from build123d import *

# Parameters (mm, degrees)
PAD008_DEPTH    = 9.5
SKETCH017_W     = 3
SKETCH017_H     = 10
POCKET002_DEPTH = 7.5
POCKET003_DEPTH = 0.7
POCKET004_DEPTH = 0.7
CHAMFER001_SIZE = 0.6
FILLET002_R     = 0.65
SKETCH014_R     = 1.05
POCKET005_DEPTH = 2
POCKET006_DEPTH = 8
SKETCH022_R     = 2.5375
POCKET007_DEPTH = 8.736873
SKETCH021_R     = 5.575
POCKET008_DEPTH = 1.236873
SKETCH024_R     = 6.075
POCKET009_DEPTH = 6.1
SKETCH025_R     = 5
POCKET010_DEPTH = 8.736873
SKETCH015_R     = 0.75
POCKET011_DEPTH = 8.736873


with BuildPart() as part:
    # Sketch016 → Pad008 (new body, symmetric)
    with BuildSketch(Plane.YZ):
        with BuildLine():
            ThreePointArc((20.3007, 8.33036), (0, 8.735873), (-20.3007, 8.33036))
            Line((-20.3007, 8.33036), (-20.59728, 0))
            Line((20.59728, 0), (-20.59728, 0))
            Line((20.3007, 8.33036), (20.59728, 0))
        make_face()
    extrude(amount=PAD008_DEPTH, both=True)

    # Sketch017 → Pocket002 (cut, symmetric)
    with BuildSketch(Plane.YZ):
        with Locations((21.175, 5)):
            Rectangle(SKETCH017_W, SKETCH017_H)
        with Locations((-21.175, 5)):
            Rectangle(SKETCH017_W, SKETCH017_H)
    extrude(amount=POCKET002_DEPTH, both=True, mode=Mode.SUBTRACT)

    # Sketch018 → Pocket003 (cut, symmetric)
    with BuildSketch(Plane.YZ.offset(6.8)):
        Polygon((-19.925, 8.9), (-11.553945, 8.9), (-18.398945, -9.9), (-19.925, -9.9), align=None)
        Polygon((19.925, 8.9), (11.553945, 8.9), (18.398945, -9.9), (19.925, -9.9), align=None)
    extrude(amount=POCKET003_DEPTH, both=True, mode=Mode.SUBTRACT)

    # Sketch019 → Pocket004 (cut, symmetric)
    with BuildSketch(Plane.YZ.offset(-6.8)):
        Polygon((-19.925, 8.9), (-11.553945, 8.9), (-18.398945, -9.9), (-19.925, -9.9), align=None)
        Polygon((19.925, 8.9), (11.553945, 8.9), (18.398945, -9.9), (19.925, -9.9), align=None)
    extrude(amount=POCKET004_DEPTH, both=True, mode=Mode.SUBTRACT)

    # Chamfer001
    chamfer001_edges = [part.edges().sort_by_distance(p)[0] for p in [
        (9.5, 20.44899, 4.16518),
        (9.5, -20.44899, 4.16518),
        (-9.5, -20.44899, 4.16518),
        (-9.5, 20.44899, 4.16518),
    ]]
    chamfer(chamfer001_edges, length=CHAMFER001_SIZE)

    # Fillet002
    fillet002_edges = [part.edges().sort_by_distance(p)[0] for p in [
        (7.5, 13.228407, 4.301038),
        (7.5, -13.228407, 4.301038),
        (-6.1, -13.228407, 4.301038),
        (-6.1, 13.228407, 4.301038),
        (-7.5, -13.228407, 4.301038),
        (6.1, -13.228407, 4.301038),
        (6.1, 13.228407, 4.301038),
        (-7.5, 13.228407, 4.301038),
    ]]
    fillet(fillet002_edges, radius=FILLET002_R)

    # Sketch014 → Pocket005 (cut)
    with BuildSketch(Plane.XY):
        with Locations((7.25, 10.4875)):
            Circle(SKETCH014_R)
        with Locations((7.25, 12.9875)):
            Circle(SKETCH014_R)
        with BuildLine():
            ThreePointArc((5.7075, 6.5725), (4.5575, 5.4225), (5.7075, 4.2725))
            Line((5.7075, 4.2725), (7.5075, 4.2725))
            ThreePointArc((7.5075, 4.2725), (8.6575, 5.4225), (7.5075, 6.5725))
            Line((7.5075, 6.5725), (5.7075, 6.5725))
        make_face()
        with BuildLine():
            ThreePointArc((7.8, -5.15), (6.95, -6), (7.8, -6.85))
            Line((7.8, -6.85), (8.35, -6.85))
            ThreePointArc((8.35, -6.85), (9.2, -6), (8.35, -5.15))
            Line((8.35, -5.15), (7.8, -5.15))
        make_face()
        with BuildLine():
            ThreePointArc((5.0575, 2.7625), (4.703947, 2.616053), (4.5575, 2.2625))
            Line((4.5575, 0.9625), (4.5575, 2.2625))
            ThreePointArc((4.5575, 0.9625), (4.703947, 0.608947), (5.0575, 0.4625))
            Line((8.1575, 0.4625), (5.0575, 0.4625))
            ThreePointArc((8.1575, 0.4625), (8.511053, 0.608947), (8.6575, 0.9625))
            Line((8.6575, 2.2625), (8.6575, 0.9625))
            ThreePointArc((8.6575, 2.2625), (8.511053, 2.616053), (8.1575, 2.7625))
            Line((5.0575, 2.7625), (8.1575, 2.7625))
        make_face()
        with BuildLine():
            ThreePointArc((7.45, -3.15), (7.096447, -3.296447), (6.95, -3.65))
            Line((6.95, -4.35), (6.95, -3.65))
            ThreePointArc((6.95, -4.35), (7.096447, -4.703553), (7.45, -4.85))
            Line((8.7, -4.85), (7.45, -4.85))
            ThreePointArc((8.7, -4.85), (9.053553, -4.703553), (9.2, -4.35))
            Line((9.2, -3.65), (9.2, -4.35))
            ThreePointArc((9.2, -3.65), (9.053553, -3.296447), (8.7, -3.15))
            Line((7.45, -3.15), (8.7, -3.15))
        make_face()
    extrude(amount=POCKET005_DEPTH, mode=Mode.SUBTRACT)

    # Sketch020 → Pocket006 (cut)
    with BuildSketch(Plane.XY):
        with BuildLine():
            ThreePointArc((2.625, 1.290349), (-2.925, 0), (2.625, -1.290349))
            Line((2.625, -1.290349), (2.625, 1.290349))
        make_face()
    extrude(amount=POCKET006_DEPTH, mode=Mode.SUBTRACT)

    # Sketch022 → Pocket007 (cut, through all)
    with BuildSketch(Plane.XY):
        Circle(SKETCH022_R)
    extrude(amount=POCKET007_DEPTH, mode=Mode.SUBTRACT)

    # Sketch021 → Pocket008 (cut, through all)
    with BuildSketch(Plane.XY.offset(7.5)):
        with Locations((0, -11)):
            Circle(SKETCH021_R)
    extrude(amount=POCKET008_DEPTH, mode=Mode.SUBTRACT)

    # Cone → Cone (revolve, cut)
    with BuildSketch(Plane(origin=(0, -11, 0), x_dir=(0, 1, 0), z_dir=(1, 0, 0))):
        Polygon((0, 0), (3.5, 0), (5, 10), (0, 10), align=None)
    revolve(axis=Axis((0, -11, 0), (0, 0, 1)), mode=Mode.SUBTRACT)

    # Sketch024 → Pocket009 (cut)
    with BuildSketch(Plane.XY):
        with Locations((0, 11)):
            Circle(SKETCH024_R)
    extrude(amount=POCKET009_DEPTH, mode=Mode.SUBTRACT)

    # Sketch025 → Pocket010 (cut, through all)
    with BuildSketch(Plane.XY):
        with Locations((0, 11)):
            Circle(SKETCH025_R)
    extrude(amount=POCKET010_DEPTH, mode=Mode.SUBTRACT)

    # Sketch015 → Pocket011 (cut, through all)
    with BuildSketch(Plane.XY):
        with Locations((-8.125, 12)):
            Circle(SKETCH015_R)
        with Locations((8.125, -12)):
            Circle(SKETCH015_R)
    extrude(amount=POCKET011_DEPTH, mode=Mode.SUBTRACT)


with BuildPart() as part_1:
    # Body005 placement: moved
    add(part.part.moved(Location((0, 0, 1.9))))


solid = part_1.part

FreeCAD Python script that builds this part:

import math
import FreeCAD as App
import Part
import Sketcher
Q = App.Units.Quantity


def edges_at(feature, points):
    """Names of the edges that pass closest to the given points."""
    edges = feature.Shape.Edges
    near = lambda p: min(range(len(edges)), key=lambda i: edges[i].distToShape(Part.Vertex(*p))[0])
    return sorted({f"Edge{near(p) + 1}" for p in points})


def add_polygon(sketch, points):
    """Adds a closed chain of lines whose ends are joined by coincident constraints."""
    first, n = sketch.GeometryCount, len(points)
    for a, b in zip(points, points[1:] + points[:1]):
        sketch.addGeometry(Part.LineSegment(App.Vector(*a, 0), App.Vector(*b, 0)), False)
    for i in range(n):
        sketch.addConstraint(Sketcher.Constraint("Coincident", first + i, 2, first + (i + 1) % n, 1))

doc = App.newDocument("Part")
body = doc.addObject("PartDesign::Body", "Body")

# Sketch on YZ plane
sketch1 = body.newObject("Sketcher::SketchObject", "Sketch")
sketch1.AttachmentSupport = (doc.getObject("YZ_Plane"), [""])
sketch1.MapMode = "FlatFace"
sketch1.addGeometry([
    Part.ArcOfCircle(Part.Circle(App.Vector(0, -499.611407, 0), App.Vector(0, 0, 1), 508.34728), math.radians(87.711301), math.radians(92.288699)),
    Part.LineSegment(App.Vector(-20.3007, 8.33036, 0), App.Vector(-20.59728, 0, 0)),
    Part.LineSegment(App.Vector(-20.59728, 0, 0), App.Vector(20.59728, 0, 0)),
    Part.LineSegment(App.Vector(20.59728, 0, 0), App.Vector(20.3007, 8.33036, 0)),
], False)
sketch1.addConstraint([
    Sketcher.Constraint("Coincident", 0, 2, 1, 1),
    Sketcher.Constraint("Coincident", 1, 2, 2, 1),
    Sketcher.Constraint("Coincident", 2, 2, 3, 1),
    Sketcher.Constraint("Coincident", 3, 2, 0, 1),
    Sketcher.Constraint("Horizontal", 2),
    Sketcher.Constraint("Symmetric", 1, 2, 2, 2, -1, 1),
    Sketcher.Constraint("Symmetric", 0, 2, 3, 2, -2),
    Sketcher.Constraint("Radius", 0, Q("508.34728 mm")),
    Sketcher.Constraint("DistanceX", 2, 1, 2, 2, Q("41.19456 mm")),
    Sketcher.Constraint("DistanceX", -1, 1, 3, 2, Q("20.3007 mm")),
    Sketcher.Constraint("DistanceY", -1, 1, 0, 2, Q("8.33036 mm")),
])
pad1 = body.newObject("PartDesign::Pad", "Pad")
pad1.Profile = sketch1
pad1.Length = 19
pad1.Midplane = True

# Sketch on YZ plane
sketch2 = body.newObject("Sketcher::SketchObject", "Sketch001")
sketch2.AttachmentSupport = (doc.getObject("YZ_Plane"), [""])
sketch2.MapMode = "FlatFace"
add_polygon(sketch2, [(19.675, 10), (19.675, 0), (22.675, 0), (22.675, 10)])  # lines 0-3
add_polygon(sketch2, [(-22.675, 10), (-22.675, 0), (-19.675, 0), (-19.675, 10)])  # lines 4-7
sketch2.addConstraint([
    Sketcher.Constraint("Vertical", 0),
    Sketcher.Constraint("Horizontal", 1),
    Sketcher.Constraint("Vertical", 2),
    Sketcher.Constraint("Horizontal", 3),
    Sketcher.Constraint("Vertical", 4),
    Sketcher.Constraint("Horizontal", 5),
    Sketcher.Constraint("Vertical", 6),
    Sketcher.Constraint("Horizontal", 7),
    Sketcher.Constraint("Symmetric", 1, 2, 4, 2, -1, 1),
    Sketcher.Constraint("Symmetric", 0, 2, 5, 2, -2),
    Sketcher.Constraint("Horizontal", 3, 2, 6, 2),
    Sketcher.Constraint("DistanceX", 1, 1, 1, 2, Q("3 mm")),
    Sketcher.Constraint("DistanceY", 0, 2, 0, 1, Q("10 mm")),
    Sketcher.Constraint("DistanceX", 4, 2, 0, 2, Q("42.35 mm")),
])
pocket1 = body.newObject("PartDesign::Pocket", "Pocket")
pocket1.Profile = sketch2
pocket1.Length = 15
pocket1.Midplane = True

# Sketch on YZ plane
sketch3 = body.newObject("Sketcher::SketchObject", "Sketch002")
sketch3.AttachmentSupport = (doc.getObject("YZ_Plane"), [""])
sketch3.MapMode = "FlatFace"
sketch3.AttachmentOffset = App.Placement(App.Vector(0, 0, 6.8), App.Rotation())
add_polygon(sketch3, [(-11.553945, 8.9), (-19.925, 8.9), (-19.925, -9.9), (-18.398945, -9.9)])  # lines 0-3
add_polygon(sketch3, [(19.925, 8.9), (11.553945, 8.9), (18.398945, -9.9), (19.925, -9.9)])  # lines 4-7
sketch3.addConstraint([
    Sketcher.Constraint("Horizontal", 0),
    Sketcher.Constraint("Vertical", 1),
    Sketcher.Constraint("Horizontal", 2),
    Sketcher.Constraint("Horizontal", 4),
    Sketcher.Constraint("Horizontal", 6),
    Sketcher.Constraint("Vertical", 7),
    Sketcher.Constraint("Symmetric", 3, 2, 4, 2, -2),
    Sketcher.Constraint("Symmetric", 2, 2, 5, 2, -2),
    Sketcher.Constraint("Equal", 0, 4),
    Sketcher.Constraint("DistanceY", 1, 2, 1, 1, Q("18.8 mm")),
    Sketcher.Constraint("DistanceY", -1, 1, 0, 2, Q("8.9 mm")),
    Sketcher.Constraint("DistanceX", 1, 2, 6, 2, Q("39.85 mm")),
    Sketcher.Constraint("DistanceX", 2, 2, 3, 2, Q("6.845 mm")),
    Sketcher.Constraint("DistanceX", 0, 2, 0, 1, Q("8.371055 mm")),
])
pocket2 = body.newObject("PartDesign::Pocket", "Pocket001")
pocket2.Profile = sketch3
pocket2.Length = 1.4
pocket2.Midplane = True

# Sketch on YZ plane
sketch4 = body.newObject("Sketcher::SketchObject", "Sketch003")
sketch4.AttachmentSupport = (doc.getObject("YZ_Plane"), [""])
sketch4.MapMode = "FlatFace"
sketch4.AttachmentOffset = App.Placement(App.Vector(0, 0, -6.8), App.Rotation())
add_polygon(sketch4, [(-11.553945, 8.9), (-19.925, 8.9), (-19.925, -9.9), (-18.398945, -9.9)])  # lines 0-3
add_polygon(sketch4, [(19.925, 8.9), (11.553945, 8.9), (18.398945, -9.9), (19.925, -9.9)])  # lines 4-7
sketch4.addConstraint([
    Sketcher.Constraint("Horizontal", 0),
    Sketcher.Constraint("Vertical", 1),
    Sketcher.Constraint("Horizontal", 2),
    Sketcher.Constraint("Horizontal", 4),
    Sketcher.Constraint("Horizontal", 6),
    Sketcher.Constraint("Vertical", 7),
    Sketcher.Constraint("Symmetric", 3, 2, 4, 2, -2),
    Sketcher.Constraint("Symmetric", 2, 2, 5, 2, -2),
    Sketcher.Constraint("Equal", 0, 4),
    Sketcher.Constraint("DistanceY", 1, 2, 1, 1, Q("18.8 mm")),
    Sketcher.Constraint("DistanceY", -1, 1, 0, 2, Q("8.9 mm")),
    Sketcher.Constraint("DistanceX", 1, 2, 6, 2, Q("39.85 mm")),
    Sketcher.Constraint("DistanceX", 2, 2, 3, 2, Q("6.845 mm")),
    Sketcher.Constraint("DistanceX", 0, 2, 0, 1, Q("8.371055 mm")),
])
pocket3 = body.newObject("PartDesign::Pocket", "Pocket002")
pocket3.Profile = sketch4
pocket3.Length = 1.4
pocket3.Midplane = True
doc.recompute()

chamfer = body.newObject("PartDesign::Chamfer", "Chamfer")
chamfer.Base = (pocket3, edges_at(pocket3, [
    (9.5, 20.449, 4.165),
    (9.5, -20.449, 4.165),
    (-9.5, -20.449, 4.165),
    (-9.5, 20.449, 4.165),
]))
chamfer.Size = 0.6
doc.recompute()

fillet = body.newObject("PartDesign::Fillet", "Fillet")
fillet.Base = (chamfer, edges_at(chamfer, [
    (7.5, 13.228, 4.301),
    (7.5, -13.228, 4.301),
    (-6.1, -13.228, 4.301),
    (-6.1, 13.228, 4.301),
    (-7.5, -13.228, 4.301),
    (6.1, -13.228, 4.301),
    (6.1, 13.228, 4.301),
    (-7.5, 13.228, 4.301),
]))
fillet.Radius = 0.65

# Sketch on XY plane
sketch5 = body.newObject("Sketcher::SketchObject", "Sketch004")
sketch5.AttachmentSupport = (doc.getObject("XY_Plane"), [""])
sketch5.MapMode = "FlatFace"
sketch5.addGeometry([
    Part.Circle(App.Vector(7.25, 10.4875, 0), App.Vector(0, 0, 1), 1.05),  # 0
    Part.Circle(App.Vector(7.25, 12.9875, 0), App.Vector(0, 0, 1), 1.05),  # 1
    Part.ArcOfCircle(Part.Circle(App.Vector(5.7075, 5.4225, 0), App.Vector(0, 0, 1), 1.15), math.radians(90), math.radians(270)),  # 2
    Part.LineSegment(App.Vector(5.7075, 4.2725, 0), App.Vector(7.5075, 4.2725, 0)),  # 3
    Part.ArcOfCircle(Part.Circle(App.Vector(7.5075, 5.4225, 0), App.Vector(0, 0, 1), 1.15), math.radians(-90), math.radians(90)),  # 4
    Part.LineSegment(App.Vector(7.5075, 6.5725, 0), App.Vector(5.7075, 6.5725, 0)),  # 5
    Part.ArcOfCircle(Part.Circle(App.Vector(7.8, -6, 0), App.Vector(0, 0, 1), 0.85), math.radians(90), math.radians(270)),  # 6
    Part.LineSegment(App.Vector(7.8, -6.85, 0), App.Vector(8.35, -6.85, 0)),  # 7
    Part.ArcOfCircle(Part.Circle(App.Vector(8.35, -6, 0), App.Vector(0, 0, 1), 0.85), math.radians(-90), math.radians(90)),  # 8
    Part.LineSegment(App.Vector(8.35, -5.15, 0), App.Vector(7.8, -5.15, 0)),  # 9
    Part.ArcOfCircle(Part.Circle(App.Vector(5.057501, 2.262499, 0), App.Vector(0, 0, 1), 0.500001), math.radians(90.000153), math.radians(179.999847)),  # 10
    Part.LineSegment(App.Vector(4.5575, 2.2625, 0), App.Vector(4.5575, 0.9625, 0)),  # 11
    Part.ArcOfCircle(Part.Circle(App.Vector(5.057501, 0.962501, 0), App.Vector(0, 0, 1), 0.500001), math.radians(-179.999847), math.radians(-90.000153)),  # 12
    Part.LineSegment(App.Vector(5.0575, 0.4625, 0), App.Vector(8.1575, 0.4625, 0)),  # 13
    Part.ArcOfCircle(Part.Circle(App.Vector(8.157499, 0.962501, 0), App.Vector(0, 0, 1), 0.500001), math.radians(-89.999847), math.radians(-0.000153)),  # 14
    Part.LineSegment(App.Vector(8.6575, 0.9625, 0), App.Vector(8.6575, 2.2625, 0)),  # 15
    Part.ArcOfCircle(Part.Circle(App.Vector(8.157499, 2.262499, 0), App.Vector(0, 0, 1), 0.500001), math.radians(0.000153), math.radians(89.999847)),  # 16
    Part.LineSegment(App.Vector(8.1575, 2.7625, 0), App.Vector(5.0575, 2.7625, 0)),  # 17
    Part.ArcOfCircle(Part.Circle(App.Vector(7.450001, -3.650001, 0), App.Vector(0, 0, 1), 0.500001), math.radians(90.000153), math.radians(179.999847)),  # 18
    Part.LineSegment(App.Vector(6.95, -3.65, 0), App.Vector(6.95, -4.35, 0)),  # 19
    Part.ArcOfCircle(Part.Circle(App.Vector(7.450001, -4.349999, 0), App.Vector(0, 0, 1), 0.500001), math.radians(-179.999847), math.radians(-90.000153)),  # 20
    Part.LineSegment(App.Vector(7.45, -4.85, 0), App.Vector(8.7, -4.85, 0)),  # 21
    Part.ArcOfCircle(Part.Circle(App.Vector(8.699999, -4.349999, 0), App.Vector(0, 0, 1), 0.500001), math.radians(-89.999847), math.radians(-0.000153)),  # 22
    Part.LineSegment(App.Vector(9.2, -4.35, 0), App.Vector(9.2, -3.65, 0)),  # 23
    Part.ArcOfCircle(Part.Circle(App.Vector(8.699999, -3.650001, 0), App.Vector(0, 0, 1), 0.500001), math.radians(0.000153), math.radians(89.999847)),  # 24
    Part.LineSegment(App.Vector(8.7, -3.15, 0), App.Vector(7.45, -3.15, 0)),  # 25
], False)
sketch5.addConstraint([
    Sketcher.Constraint("Tangent", 2, 2, 3, 1),
    Sketcher.Constraint("Tangent", 3, 2, 4, 1),
    Sketcher.Constraint("Tangent", 4, 2, 5, 1),
    Sketcher.Constraint("Tangent", 5, 2, 2, 1),
    Sketcher.Constraint("Tangent", 6, 2, 7, 1),
    Sketcher.Constraint("Tangent", 7, 2, 8, 1),
    Sketcher.Constraint("Tangent", 8, 2, 9, 1),
    Sketcher.Constraint("Tangent", 9, 2, 6, 1),
    Sketcher.Constraint("Coincident", 10, 2, 11, 1),
    Sketcher.Constraint("Coincident", 11, 2, 12, 1),
    Sketcher.Constraint("Coincident", 12, 2, 13, 1),
    Sketcher.Constraint("Coincident", 13, 2, 14, 1),
    Sketcher.Constraint("Coincident", 14, 2, 15, 1),
    Sketcher.Constraint("Coincident", 15, 2, 16, 1),
    Sketcher.Constraint("Coincident", 16, 2, 17, 1),
    Sketcher.Constraint("Coincident", 17, 2, 10, 1),
    Sketcher.Constraint("Coincident", 18, 2, 19, 1),
    Sketcher.Constraint("Coincident", 19, 2, 20, 1),
    Sketcher.Constraint("Coincident", 20, 2, 21, 1),
    Sketcher.Constraint("Coincident", 21, 2, 22, 1),
    Sketcher.Constraint("Coincident", 22, 2, 23, 1),
    Sketcher.Constraint("Coincident", 23, 2, 24, 1),
    Sketcher.Constraint("Coincident", 24, 2, 25, 1),
    Sketcher.Constraint("Coincident", 25, 2, 18, 1),
    Sketcher.Constraint("Horizontal", 3),
    Sketcher.Constraint("Horizontal", 5),
    Sketcher.Constraint("Horizontal", 7),
    Sketcher.Constraint("Horizontal", 9),
    Sketcher.Constraint("Vertical", 11),
    Sketcher.Constraint("Horizontal", 13),
    Sketcher.Constraint("Vertical", 15),
    Sketcher.Constraint("Horizontal", 17),
    Sketcher.Constraint("Vertical", 19),
    Sketcher.Constraint("Horizontal", 21),
    Sketcher.Constraint("Vertical", 23),
    Sketcher.Constraint("Horizontal", 25),
    Sketcher.Constraint("Equal", 0, 1),
    Sketcher.Constraint("Equal", 10, 12),
    Sketcher.Constraint("Equal", 12, 14),
    Sketcher.Constraint("Equal", 14, 16),
    Sketcher.Constraint("Equal", 16, 18),
    Sketcher.Constraint("Equal", 18, 20),
    Sketcher.Constraint("Equal", 20, 22),
    Sketcher.Constraint("Equal", 22, 24),
    Sketcher.Constraint("Horizontal", 16, 3, 10, 2),
    Sketcher.Constraint("Horizontal", 14, 3, 11, 2),
    Sketcher.Constraint("Horizontal", 11, 2, 14, 2),
    Sketcher.Constraint("Horizontal", 10, 2, 15, 2),
    Sketcher.Constraint("Horizontal", 24, 3, 18, 2),
    Sketcher.Constraint("Horizontal", 22, 3, 19, 2),
    Sketcher.Constraint("Horizontal", 19, 2, 22, 2),
    Sketcher.Constraint("Horizontal", 18, 2, 23, 2),
    Sketcher.Constraint("Vertical", 0, 3, 1, 3),
    Sketcher.Constraint("Vertical", 10, 3, 12, 2),
    Sketcher.Constraint("Vertical", 16, 3, 13, 2),
    Sketcher.Constraint("Vertical", 13, 2, 16, 2),
    Sketcher.Constraint("Vertical", 12, 2, 17, 2),
    Sketcher.Constraint("Vertical", 18, 3, 20, 2),
    Sketcher.Constraint("Vertical", 24, 3, 21, 2),
    Sketcher.Constraint("Vertical", 21, 2, 24, 2),
    Sketcher.Constraint("Vertical", 20, 2, 25, 2),
    Sketcher.Constraint("Diameter", 0, Q("2.1 mm")),
    Sketcher.Constraint("Radius", 10, Q("0.500001 mm")),
    Sketcher.Constraint("Radius", 2, Q("1.15 mm")),
    Sketcher.Constraint("Radius", 6, Q("0.85 mm")),
    Sketcher.Constraint("DistanceX", 3, 1, 3, 2, Q("1.8 mm")),
    Sketcher.Constraint("DistanceX", 13, 1, 13, 2, Q("3.1 mm")),
    Sketcher.Constraint("DistanceY", 11, 2, 11, 1, Q("1.3 mm")),
    Sketcher.Constraint("DistanceY", 19, 2, 19, 1, Q("0.7 mm")),
    Sketcher.Constraint("DistanceY", 6, 3, -1, 1, Q("6 mm")),
    Sketcher.Constraint("DistanceX", 7, 1, 7, 2, Q("0.55 mm")),
    Sketcher.Constraint("DistanceX", 21, 1, 21, 2, Q("1.25 mm")),
    Sketcher.Constraint("DistanceX", -1, 1, 6, 3, Q("7.8 mm")),
    Sketcher.Constraint("DistanceX", -1, 1, 22, 3, Q("8.699999 mm")),
    Sketcher.Constraint("DistanceY", 0, 3, 1, 3, Q("2.5 mm")),
    Sketcher.Constraint("DistanceX", 0, 3, 8, 3, Q("1.1 mm")),
    Sketcher.Constraint("DistanceY", 6, 2, 20, 3, Q("2.500001 mm")),
    Sketcher.Constraint("DistanceX", 10, 3, 2, 3, Q("0.649999 mm")),
    Sketcher.Constraint("DistanceY", 10, 3, 2, 3, Q("3.160001 mm")),
    Sketcher.Constraint("DistanceY", 2, 3, 0, 3, Q("5.065 mm")),
    Sketcher.Constraint("DistanceY", -1, 1, 0, 3, Q("10.4875 mm")),
    Sketcher.Constraint("DistanceX", -1, 1, 2, 3, Q("5.7075 mm")),
])
pocket4 = body.newObject("PartDesign::Pocket", "Pocket003")
pocket4.Profile = sketch5
pocket4.Length = 2
pocket4.Reversed = True

# Sketch on XY plane
sketch6 = body.newObject("Sketcher::SketchObject", "Sketch005")
sketch6.AttachmentSupport = (doc.getObject("XY_Plane"), [""])
sketch6.MapMode = "FlatFace"
sketch6.addGeometry([
    Part.ArcOfCircle(Part.Circle(App.Vector(0, 0, 0), App.Vector(0, 0, 1), 2.925), math.radians(26.176956), math.radians(333.823044)),
    Part.LineSegment(App.Vector(2.625, -1.290349, 0), App.Vector(2.625, 1.290349, 0)),
], False)
sketch6.addConstraint([
    Sketcher.Constraint("Coincident", 0, 1, 1, 2),
    Sketcher.Constraint("Coincident", 1, 1, 0, 2),
    Sketcher.Constraint("Vertical", 1),
    Sketcher.Constraint("Coincident", 0, 3, -1, 1),
    Sketcher.Constraint("Radius", 0, Q("2.925 mm")),
    Sketcher.Constraint("DistanceX", -1, 1, 0, 1, Q("2.625 mm")),
])
pocket5 = body.newObject("PartDesign::Pocket", "Pocket004")
pocket5.Profile = sketch6
pocket5.Length = 8
pocket5.Reversed = True

# Sketch on XY plane
sketch7 = body.newObject("Sketcher::SketchObject", "Sketch006")
sketch7.AttachmentSupport = (doc.getObject("XY_Plane"), [""])
sketch7.MapMode = "FlatFace"
sketch7.addGeometry(Part.Circle(App.Vector(0, 0, 0), App.Vector(0, 0, 1), 2.5375), False)
sketch7.addConstraint([
    Sketcher.Constraint("Coincident", 0, 3, -1, 1),
    Sketcher.Constraint("Diameter", 0, Q("5.075 mm")),
])
pocket6 = body.newObject("PartDesign::Pocket", "Pocket005")
pocket6.Profile = sketch7
pocket6.Type = "ThroughAll"
pocket6.Reversed = True

# Sketch on XY plane
sketch8 = body.newObject("Sketcher::SketchObject", "Sketch007")
sketch8.AttachmentSupport = (doc.getObject("XY_Plane"), [""])
sketch8.MapMode = "FlatFace"
sketch8.AttachmentOffset = App.Placement(App.Vector(0, 0, 7.5), App.Rotation())
sketch8.addGeometry(Part.Circle(App.Vector(0, -11, 0), App.Vector(0, 0, 1), 5.575), False)
sketch8.addConstraint([
    Sketcher.Constraint("PointOnObject", 0, 3, -2),
    Sketcher.Constraint("Diameter", 0, Q("11.15 mm")),
    Sketcher.Constraint("DistanceY", 0, 3, -1, 1, Q("11 mm")),
])
pocket7 = body.newObject("PartDesign::Pocket", "Pocket006")
pocket7.Profile = sketch8
pocket7.Type = "ThroughAll"
pocket7.Reversed = True

# Sketch on YZ plane
sketch9 = body.newObject("Sketcher::SketchObject", "Sketch008")
sketch9.AttachmentSupport = (doc.getObject("YZ_Plane"), [""])
sketch9.MapMode = "FlatFace"
add_polygon(sketch9, [(-11, 0), (-7.5, 0), (-6, 10), (-11, 10)])  # lines 0-3
sketch9.addGeometry(Part.LineSegment(App.Vector(-11, 0, 0), App.Vector(-11, 10, 0)), True)  # axis
sketch9.addConstraint([
    Sketcher.Constraint("Horizontal", 0),
    Sketcher.Constraint("Horizontal", 2),
    Sketcher.Constraint("Vertical", 3),
    Sketcher.Constraint("Vertical", 4),
    Sketcher.Constraint("Coincident", 4, 1, 3, 2),
    Sketcher.Constraint("PointOnObject", 0, 2, -1),
    Sketcher.Constraint("Horizontal", 1, 2, 4, 2),
    Sketcher.Constraint("DistanceX", 2, 2, 2, 1, Q("5 mm")),
    Sketcher.Constraint("DistanceY", 3, 2, 3, 1, Q("10 mm")),
    Sketcher.Constraint("DistanceX", 0, 1, 0, 2, Q("3.5 mm")),
    Sketcher.Constraint("DistanceX", 1, 2, -1, 1, Q("6 mm")),
])
groove = body.newObject("PartDesign::Groove", "Groove")
groove.Profile = sketch9
groove.ReferenceAxis = (sketch9, ["Axis0"])
groove.Angle = 360

# Sketch on XY plane
sketch10 = body.newObject("Sketcher::SketchObject", "Sketch009")
sketch10.AttachmentSupport = (doc.getObject("XY_Plane"), [""])
sketch10.MapMode = "FlatFace"
sketch10.addGeometry(Part.Circle(App.Vector(0, 11, 0), App.Vector(0, 0, 1), 6.075), False)
sketch10.addConstraint([
    Sketcher.Constraint("PointOnObject", 0, 3, -2),
    Sketcher.Constraint("Diameter", 0, Q("12.15 mm")),
    Sketcher.Constraint("DistanceY", -1, 1, 0, 3, Q("11 mm")),
])
pocket8 = body.newObject("PartDesign::Pocket", "Pocket007")
pocket8.Profile = sketch10
pocket8.Length = 6.1
pocket8.Reversed = True

# Sketch on XY plane
sketch11 = body.newObject("Sketcher::SketchObject", "Sketch010")
sketch11.AttachmentSupport = (doc.getObject("XY_Plane"), [""])
sketch11.MapMode = "FlatFace"
sketch11.addGeometry(Part.Circle(App.Vector(0, 11, 0), App.Vector(0, 0, 1), 5), False)
sketch11.addConstraint([
    Sketcher.Constraint("PointOnObject", 0, 3, -2),
    Sketcher.Constraint("Diameter", 0, Q("10 mm")),
    Sketcher.Constraint("DistanceY", -1, 1, 0, 3, Q("11 mm")),
])
pocket9 = body.newObject("PartDesign::Pocket", "Pocket008")
pocket9.Profile = sketch11
pocket9.Type = "ThroughAll"
pocket9.Reversed = True

# Sketch on XY plane
sketch12 = body.newObject("Sketcher::SketchObject", "Sketch011")
sketch12.AttachmentSupport = (doc.getObject("XY_Plane"), [""])
sketch12.MapMode = "FlatFace"
sketch12.addGeometry([
    Part.Circle(App.Vector(-8.125, 12, 0), App.Vector(0, 0, 1), 0.75),
    Part.Circle(App.Vector(8.125, -12, 0), App.Vector(0, 0, 1), 0.75),
], False)
sketch12.addConstraint([
    Sketcher.Constraint("Equal", 0, 1),
    Sketcher.Constraint("Symmetric", 0, 3, 1, 3, -1, 1),
    Sketcher.Constraint("Diameter", 0, Q("1.5 mm")),
    Sketcher.Constraint("DistanceY", -1, 1, 0, 3, Q("12 mm")),
    Sketcher.Constraint("DistanceX", 0, 3, 1, 3, Q("16.25 mm")),
])
pocket10 = body.newObject("PartDesign::Pocket", "Pocket009")
pocket10.Profile = sketch12
pocket10.Type = "ThroughAll"
pocket10.Reversed = True
body2 = doc.addObject("PartDesign::Body", "Body001")
doc.recompute()

body.Placement = App.Placement(App.Vector(0, 0, 1.9), App.Rotation(App.Vector(0, 0, 1), 0))
boolean = body2.newObject("PartDesign::Boolean", "Boolean")
boolean.Type = "Fuse"
boolean.addObjects([body])

doc.recompute()
